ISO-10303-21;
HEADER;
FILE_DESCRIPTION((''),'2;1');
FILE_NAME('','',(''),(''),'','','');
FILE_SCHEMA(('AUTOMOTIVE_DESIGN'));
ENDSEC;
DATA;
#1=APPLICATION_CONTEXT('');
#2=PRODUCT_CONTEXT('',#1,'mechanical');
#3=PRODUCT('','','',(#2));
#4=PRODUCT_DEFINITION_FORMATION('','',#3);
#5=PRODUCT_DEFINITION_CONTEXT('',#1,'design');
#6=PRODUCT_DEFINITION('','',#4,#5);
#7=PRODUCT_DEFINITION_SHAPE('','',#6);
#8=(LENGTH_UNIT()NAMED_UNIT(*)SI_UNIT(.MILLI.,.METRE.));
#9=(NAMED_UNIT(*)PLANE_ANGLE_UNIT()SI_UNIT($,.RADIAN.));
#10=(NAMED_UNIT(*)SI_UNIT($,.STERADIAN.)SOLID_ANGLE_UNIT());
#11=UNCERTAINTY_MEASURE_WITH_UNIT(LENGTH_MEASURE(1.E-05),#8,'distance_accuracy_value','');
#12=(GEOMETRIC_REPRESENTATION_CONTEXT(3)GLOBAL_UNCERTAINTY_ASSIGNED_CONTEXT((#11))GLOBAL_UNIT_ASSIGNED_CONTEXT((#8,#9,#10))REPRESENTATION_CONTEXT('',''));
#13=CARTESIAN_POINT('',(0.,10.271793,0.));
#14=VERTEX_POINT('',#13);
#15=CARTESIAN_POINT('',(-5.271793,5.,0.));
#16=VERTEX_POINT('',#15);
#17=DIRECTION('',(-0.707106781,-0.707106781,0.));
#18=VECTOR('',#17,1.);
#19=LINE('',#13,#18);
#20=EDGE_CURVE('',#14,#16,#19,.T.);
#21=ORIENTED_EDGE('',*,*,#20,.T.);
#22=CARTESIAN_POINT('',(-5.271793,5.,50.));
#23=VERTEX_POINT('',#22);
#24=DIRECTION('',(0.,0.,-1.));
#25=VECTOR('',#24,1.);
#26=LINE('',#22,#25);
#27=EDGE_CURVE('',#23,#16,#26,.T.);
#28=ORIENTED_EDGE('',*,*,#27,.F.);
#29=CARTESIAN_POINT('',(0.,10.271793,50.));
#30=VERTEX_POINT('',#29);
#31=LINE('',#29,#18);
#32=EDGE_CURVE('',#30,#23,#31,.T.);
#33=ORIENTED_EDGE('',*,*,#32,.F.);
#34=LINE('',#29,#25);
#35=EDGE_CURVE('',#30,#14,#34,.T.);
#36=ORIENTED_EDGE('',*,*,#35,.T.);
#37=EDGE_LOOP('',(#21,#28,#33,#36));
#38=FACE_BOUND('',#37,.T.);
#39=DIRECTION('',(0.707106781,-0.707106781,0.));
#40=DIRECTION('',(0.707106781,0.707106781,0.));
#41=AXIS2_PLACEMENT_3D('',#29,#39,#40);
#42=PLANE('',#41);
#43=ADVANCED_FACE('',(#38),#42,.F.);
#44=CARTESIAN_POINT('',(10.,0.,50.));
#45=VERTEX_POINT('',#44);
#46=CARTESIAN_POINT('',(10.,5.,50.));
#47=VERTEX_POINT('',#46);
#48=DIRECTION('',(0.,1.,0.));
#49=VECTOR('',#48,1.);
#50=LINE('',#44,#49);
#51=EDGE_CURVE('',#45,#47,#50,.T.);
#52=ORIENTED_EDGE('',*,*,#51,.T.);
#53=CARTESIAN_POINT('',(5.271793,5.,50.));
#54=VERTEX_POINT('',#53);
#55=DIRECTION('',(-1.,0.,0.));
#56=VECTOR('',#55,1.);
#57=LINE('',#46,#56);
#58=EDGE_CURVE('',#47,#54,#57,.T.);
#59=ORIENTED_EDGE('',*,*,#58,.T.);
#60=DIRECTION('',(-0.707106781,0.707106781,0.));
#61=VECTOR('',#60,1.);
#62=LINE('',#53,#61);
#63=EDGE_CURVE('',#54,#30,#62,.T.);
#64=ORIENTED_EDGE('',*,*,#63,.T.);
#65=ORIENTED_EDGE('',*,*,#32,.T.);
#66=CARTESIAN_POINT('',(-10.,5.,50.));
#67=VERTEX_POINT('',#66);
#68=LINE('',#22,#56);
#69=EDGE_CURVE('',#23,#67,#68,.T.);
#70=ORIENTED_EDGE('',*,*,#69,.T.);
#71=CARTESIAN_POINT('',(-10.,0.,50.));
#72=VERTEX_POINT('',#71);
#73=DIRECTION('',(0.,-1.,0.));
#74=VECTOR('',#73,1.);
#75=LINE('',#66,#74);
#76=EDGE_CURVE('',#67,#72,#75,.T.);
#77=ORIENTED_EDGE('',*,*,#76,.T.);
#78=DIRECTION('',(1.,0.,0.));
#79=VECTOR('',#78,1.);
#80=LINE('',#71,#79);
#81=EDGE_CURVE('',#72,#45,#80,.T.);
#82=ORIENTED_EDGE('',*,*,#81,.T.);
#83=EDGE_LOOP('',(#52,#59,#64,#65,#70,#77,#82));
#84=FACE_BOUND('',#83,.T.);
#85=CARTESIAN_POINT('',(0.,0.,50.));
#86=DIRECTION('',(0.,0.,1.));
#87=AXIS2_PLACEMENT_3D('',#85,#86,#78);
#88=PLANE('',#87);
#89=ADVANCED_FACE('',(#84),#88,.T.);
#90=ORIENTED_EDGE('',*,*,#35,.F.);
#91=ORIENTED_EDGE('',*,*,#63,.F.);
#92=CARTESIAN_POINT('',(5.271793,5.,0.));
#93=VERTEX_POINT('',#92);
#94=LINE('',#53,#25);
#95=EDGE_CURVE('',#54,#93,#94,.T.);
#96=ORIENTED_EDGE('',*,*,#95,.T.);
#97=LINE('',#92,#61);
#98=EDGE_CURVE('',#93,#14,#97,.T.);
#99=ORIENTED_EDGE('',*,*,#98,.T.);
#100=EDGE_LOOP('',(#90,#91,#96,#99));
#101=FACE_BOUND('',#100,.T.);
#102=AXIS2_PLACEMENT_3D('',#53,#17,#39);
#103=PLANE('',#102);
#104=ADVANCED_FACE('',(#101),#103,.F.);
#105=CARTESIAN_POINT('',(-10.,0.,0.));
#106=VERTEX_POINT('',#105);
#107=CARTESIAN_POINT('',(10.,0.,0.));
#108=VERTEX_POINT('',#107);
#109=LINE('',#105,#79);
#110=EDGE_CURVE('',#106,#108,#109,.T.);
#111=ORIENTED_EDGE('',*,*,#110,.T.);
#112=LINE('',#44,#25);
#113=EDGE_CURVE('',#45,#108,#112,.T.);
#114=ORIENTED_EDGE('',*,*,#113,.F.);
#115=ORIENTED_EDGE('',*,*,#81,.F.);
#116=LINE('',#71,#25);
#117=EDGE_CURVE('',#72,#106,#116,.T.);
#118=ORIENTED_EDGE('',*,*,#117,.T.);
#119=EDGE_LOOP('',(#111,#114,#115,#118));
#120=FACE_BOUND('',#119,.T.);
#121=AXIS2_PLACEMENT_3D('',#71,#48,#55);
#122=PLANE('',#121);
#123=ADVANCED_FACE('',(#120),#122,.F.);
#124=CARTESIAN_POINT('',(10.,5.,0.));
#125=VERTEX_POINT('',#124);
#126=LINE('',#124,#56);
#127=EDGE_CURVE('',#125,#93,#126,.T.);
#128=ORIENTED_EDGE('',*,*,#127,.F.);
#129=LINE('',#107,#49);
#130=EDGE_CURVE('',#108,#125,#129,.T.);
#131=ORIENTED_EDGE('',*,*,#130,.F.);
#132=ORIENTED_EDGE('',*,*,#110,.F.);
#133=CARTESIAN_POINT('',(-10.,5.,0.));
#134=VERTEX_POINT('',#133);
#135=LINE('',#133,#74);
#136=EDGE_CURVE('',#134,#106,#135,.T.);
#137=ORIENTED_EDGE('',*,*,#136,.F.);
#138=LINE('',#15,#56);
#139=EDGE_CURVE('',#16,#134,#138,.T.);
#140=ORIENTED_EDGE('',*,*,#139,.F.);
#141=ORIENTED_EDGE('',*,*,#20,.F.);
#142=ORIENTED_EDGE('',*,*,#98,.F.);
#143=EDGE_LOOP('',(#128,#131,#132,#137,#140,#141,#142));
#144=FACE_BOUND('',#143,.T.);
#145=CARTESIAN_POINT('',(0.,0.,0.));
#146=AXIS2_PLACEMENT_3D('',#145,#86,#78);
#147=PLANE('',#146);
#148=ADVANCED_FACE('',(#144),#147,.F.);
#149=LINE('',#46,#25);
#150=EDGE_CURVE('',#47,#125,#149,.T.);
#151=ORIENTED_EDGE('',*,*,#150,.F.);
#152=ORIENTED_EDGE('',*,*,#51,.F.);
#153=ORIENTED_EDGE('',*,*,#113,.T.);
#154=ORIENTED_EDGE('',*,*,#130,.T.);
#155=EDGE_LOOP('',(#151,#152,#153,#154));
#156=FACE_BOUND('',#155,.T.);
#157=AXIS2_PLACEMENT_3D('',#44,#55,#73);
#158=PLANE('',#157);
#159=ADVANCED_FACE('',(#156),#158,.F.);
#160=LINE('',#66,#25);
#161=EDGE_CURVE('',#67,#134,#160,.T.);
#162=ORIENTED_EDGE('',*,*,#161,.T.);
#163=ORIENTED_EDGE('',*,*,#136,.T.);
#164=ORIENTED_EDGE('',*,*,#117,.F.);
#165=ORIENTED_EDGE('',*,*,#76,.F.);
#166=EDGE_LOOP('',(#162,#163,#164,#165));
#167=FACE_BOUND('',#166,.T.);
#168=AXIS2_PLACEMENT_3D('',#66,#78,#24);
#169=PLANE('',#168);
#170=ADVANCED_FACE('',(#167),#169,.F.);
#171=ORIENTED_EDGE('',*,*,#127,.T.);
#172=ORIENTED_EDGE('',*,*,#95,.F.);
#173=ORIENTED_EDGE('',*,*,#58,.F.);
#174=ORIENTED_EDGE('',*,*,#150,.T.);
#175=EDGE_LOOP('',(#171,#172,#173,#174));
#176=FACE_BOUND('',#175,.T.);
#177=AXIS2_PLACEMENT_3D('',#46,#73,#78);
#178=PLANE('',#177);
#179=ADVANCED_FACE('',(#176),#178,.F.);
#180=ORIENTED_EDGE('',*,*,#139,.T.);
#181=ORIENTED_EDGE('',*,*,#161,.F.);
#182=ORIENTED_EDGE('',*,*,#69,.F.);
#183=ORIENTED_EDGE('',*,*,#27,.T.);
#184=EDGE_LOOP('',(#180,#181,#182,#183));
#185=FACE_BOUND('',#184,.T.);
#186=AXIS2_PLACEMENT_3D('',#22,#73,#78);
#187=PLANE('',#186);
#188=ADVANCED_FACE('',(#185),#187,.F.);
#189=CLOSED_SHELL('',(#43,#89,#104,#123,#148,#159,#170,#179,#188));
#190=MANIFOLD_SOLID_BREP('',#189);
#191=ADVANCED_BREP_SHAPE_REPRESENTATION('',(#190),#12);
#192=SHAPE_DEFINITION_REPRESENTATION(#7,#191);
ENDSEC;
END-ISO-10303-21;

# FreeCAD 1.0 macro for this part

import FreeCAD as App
import Part
import Sketcher

V = App.Vector
Q = App.Units.Quantity

doc = App.newDocument("Part")
body = doc.addObject("PartDesign::Body", "Body")

# Sketch on XY plane
sketch1 = doc.addObject("Sketcher::SketchObject", "Sketch")
body.addObject(sketch1)
sketch1.AttachmentSupport = (doc.XY_Plane, [""])
sketch1.MapMode = "FlatFace"
sketch1.addGeometry([
    Part.LineSegment(V(10, 0, 0), V(10, 5, 0)),  # 0
    Part.LineSegment(V(10, 5, 0), V(5.3, 5, 0)),  # 1
    Part.LineSegment(V(5.3, 5, 0), V(0, 10.3, 0)),  # 2
    Part.LineSegment(V(0, 10.3, 0), V(-5.3, 5, 0)),  # 3
    Part.LineSegment(V(-5.3, 5, 0), V(-10, 5, 0)),  # 4
    Part.LineSegment(V(-10, 5, 0), V(-10, 0, 0)),  # 5
    Part.LineSegment(V(-10, 0, 0), V(10, 0, 0)),  # 6
], False)
sketch1.addConstraint([
    Sketcher.Constraint("Coincident", 0, 2, 1, 1),
    Sketcher.Constraint("Coincident", 1, 2, 2, 1),
    Sketcher.Constraint("Coincident", 2, 2, 3, 1),
    Sketcher.Constraint("Coincident", 3, 2, 4, 1),
    Sketcher.Constraint("Coincident", 4, 2, 5, 1),
    Sketcher.Constraint("Coincident", 5, 2, 6, 1),
    Sketcher.Constraint("Coincident", 6, 2, 0, 1),
    Sketcher.Constraint("Vertical", 0),
    Sketcher.Constraint("Horizontal", 1),
    Sketcher.Constraint("Horizontal", 4),
    Sketcher.Constraint("Vertical", 5),
    Sketcher.Constraint("Horizontal", 6),
    Sketcher.Constraint("Symmetric", 5, 2, 6, 2, -1, 1),
    Sketcher.Constraint("Symmetric", 1, 2, 3, 2, -2),
    Sketcher.Constraint("PointOnObject", 2, 2, -2),
    Sketcher.Constraint("Perpendicular", 2, 3),
    Sketcher.Constraint("DistanceX", 6, 1, 6, 2, Q("20 mm")),
    Sketcher.Constraint("DistanceY", 0, 1, 0, 2, Q("5 mm")),
    Sketcher.Constraint("Distance", 2, Q("7.455441 mm")),
])
pad1 = doc.addObject("PartDesign::Pad", "Pad")
body.addObject(pad1)
pad1.Profile = sketch1
pad1.Length = 50

doc.recompute()
